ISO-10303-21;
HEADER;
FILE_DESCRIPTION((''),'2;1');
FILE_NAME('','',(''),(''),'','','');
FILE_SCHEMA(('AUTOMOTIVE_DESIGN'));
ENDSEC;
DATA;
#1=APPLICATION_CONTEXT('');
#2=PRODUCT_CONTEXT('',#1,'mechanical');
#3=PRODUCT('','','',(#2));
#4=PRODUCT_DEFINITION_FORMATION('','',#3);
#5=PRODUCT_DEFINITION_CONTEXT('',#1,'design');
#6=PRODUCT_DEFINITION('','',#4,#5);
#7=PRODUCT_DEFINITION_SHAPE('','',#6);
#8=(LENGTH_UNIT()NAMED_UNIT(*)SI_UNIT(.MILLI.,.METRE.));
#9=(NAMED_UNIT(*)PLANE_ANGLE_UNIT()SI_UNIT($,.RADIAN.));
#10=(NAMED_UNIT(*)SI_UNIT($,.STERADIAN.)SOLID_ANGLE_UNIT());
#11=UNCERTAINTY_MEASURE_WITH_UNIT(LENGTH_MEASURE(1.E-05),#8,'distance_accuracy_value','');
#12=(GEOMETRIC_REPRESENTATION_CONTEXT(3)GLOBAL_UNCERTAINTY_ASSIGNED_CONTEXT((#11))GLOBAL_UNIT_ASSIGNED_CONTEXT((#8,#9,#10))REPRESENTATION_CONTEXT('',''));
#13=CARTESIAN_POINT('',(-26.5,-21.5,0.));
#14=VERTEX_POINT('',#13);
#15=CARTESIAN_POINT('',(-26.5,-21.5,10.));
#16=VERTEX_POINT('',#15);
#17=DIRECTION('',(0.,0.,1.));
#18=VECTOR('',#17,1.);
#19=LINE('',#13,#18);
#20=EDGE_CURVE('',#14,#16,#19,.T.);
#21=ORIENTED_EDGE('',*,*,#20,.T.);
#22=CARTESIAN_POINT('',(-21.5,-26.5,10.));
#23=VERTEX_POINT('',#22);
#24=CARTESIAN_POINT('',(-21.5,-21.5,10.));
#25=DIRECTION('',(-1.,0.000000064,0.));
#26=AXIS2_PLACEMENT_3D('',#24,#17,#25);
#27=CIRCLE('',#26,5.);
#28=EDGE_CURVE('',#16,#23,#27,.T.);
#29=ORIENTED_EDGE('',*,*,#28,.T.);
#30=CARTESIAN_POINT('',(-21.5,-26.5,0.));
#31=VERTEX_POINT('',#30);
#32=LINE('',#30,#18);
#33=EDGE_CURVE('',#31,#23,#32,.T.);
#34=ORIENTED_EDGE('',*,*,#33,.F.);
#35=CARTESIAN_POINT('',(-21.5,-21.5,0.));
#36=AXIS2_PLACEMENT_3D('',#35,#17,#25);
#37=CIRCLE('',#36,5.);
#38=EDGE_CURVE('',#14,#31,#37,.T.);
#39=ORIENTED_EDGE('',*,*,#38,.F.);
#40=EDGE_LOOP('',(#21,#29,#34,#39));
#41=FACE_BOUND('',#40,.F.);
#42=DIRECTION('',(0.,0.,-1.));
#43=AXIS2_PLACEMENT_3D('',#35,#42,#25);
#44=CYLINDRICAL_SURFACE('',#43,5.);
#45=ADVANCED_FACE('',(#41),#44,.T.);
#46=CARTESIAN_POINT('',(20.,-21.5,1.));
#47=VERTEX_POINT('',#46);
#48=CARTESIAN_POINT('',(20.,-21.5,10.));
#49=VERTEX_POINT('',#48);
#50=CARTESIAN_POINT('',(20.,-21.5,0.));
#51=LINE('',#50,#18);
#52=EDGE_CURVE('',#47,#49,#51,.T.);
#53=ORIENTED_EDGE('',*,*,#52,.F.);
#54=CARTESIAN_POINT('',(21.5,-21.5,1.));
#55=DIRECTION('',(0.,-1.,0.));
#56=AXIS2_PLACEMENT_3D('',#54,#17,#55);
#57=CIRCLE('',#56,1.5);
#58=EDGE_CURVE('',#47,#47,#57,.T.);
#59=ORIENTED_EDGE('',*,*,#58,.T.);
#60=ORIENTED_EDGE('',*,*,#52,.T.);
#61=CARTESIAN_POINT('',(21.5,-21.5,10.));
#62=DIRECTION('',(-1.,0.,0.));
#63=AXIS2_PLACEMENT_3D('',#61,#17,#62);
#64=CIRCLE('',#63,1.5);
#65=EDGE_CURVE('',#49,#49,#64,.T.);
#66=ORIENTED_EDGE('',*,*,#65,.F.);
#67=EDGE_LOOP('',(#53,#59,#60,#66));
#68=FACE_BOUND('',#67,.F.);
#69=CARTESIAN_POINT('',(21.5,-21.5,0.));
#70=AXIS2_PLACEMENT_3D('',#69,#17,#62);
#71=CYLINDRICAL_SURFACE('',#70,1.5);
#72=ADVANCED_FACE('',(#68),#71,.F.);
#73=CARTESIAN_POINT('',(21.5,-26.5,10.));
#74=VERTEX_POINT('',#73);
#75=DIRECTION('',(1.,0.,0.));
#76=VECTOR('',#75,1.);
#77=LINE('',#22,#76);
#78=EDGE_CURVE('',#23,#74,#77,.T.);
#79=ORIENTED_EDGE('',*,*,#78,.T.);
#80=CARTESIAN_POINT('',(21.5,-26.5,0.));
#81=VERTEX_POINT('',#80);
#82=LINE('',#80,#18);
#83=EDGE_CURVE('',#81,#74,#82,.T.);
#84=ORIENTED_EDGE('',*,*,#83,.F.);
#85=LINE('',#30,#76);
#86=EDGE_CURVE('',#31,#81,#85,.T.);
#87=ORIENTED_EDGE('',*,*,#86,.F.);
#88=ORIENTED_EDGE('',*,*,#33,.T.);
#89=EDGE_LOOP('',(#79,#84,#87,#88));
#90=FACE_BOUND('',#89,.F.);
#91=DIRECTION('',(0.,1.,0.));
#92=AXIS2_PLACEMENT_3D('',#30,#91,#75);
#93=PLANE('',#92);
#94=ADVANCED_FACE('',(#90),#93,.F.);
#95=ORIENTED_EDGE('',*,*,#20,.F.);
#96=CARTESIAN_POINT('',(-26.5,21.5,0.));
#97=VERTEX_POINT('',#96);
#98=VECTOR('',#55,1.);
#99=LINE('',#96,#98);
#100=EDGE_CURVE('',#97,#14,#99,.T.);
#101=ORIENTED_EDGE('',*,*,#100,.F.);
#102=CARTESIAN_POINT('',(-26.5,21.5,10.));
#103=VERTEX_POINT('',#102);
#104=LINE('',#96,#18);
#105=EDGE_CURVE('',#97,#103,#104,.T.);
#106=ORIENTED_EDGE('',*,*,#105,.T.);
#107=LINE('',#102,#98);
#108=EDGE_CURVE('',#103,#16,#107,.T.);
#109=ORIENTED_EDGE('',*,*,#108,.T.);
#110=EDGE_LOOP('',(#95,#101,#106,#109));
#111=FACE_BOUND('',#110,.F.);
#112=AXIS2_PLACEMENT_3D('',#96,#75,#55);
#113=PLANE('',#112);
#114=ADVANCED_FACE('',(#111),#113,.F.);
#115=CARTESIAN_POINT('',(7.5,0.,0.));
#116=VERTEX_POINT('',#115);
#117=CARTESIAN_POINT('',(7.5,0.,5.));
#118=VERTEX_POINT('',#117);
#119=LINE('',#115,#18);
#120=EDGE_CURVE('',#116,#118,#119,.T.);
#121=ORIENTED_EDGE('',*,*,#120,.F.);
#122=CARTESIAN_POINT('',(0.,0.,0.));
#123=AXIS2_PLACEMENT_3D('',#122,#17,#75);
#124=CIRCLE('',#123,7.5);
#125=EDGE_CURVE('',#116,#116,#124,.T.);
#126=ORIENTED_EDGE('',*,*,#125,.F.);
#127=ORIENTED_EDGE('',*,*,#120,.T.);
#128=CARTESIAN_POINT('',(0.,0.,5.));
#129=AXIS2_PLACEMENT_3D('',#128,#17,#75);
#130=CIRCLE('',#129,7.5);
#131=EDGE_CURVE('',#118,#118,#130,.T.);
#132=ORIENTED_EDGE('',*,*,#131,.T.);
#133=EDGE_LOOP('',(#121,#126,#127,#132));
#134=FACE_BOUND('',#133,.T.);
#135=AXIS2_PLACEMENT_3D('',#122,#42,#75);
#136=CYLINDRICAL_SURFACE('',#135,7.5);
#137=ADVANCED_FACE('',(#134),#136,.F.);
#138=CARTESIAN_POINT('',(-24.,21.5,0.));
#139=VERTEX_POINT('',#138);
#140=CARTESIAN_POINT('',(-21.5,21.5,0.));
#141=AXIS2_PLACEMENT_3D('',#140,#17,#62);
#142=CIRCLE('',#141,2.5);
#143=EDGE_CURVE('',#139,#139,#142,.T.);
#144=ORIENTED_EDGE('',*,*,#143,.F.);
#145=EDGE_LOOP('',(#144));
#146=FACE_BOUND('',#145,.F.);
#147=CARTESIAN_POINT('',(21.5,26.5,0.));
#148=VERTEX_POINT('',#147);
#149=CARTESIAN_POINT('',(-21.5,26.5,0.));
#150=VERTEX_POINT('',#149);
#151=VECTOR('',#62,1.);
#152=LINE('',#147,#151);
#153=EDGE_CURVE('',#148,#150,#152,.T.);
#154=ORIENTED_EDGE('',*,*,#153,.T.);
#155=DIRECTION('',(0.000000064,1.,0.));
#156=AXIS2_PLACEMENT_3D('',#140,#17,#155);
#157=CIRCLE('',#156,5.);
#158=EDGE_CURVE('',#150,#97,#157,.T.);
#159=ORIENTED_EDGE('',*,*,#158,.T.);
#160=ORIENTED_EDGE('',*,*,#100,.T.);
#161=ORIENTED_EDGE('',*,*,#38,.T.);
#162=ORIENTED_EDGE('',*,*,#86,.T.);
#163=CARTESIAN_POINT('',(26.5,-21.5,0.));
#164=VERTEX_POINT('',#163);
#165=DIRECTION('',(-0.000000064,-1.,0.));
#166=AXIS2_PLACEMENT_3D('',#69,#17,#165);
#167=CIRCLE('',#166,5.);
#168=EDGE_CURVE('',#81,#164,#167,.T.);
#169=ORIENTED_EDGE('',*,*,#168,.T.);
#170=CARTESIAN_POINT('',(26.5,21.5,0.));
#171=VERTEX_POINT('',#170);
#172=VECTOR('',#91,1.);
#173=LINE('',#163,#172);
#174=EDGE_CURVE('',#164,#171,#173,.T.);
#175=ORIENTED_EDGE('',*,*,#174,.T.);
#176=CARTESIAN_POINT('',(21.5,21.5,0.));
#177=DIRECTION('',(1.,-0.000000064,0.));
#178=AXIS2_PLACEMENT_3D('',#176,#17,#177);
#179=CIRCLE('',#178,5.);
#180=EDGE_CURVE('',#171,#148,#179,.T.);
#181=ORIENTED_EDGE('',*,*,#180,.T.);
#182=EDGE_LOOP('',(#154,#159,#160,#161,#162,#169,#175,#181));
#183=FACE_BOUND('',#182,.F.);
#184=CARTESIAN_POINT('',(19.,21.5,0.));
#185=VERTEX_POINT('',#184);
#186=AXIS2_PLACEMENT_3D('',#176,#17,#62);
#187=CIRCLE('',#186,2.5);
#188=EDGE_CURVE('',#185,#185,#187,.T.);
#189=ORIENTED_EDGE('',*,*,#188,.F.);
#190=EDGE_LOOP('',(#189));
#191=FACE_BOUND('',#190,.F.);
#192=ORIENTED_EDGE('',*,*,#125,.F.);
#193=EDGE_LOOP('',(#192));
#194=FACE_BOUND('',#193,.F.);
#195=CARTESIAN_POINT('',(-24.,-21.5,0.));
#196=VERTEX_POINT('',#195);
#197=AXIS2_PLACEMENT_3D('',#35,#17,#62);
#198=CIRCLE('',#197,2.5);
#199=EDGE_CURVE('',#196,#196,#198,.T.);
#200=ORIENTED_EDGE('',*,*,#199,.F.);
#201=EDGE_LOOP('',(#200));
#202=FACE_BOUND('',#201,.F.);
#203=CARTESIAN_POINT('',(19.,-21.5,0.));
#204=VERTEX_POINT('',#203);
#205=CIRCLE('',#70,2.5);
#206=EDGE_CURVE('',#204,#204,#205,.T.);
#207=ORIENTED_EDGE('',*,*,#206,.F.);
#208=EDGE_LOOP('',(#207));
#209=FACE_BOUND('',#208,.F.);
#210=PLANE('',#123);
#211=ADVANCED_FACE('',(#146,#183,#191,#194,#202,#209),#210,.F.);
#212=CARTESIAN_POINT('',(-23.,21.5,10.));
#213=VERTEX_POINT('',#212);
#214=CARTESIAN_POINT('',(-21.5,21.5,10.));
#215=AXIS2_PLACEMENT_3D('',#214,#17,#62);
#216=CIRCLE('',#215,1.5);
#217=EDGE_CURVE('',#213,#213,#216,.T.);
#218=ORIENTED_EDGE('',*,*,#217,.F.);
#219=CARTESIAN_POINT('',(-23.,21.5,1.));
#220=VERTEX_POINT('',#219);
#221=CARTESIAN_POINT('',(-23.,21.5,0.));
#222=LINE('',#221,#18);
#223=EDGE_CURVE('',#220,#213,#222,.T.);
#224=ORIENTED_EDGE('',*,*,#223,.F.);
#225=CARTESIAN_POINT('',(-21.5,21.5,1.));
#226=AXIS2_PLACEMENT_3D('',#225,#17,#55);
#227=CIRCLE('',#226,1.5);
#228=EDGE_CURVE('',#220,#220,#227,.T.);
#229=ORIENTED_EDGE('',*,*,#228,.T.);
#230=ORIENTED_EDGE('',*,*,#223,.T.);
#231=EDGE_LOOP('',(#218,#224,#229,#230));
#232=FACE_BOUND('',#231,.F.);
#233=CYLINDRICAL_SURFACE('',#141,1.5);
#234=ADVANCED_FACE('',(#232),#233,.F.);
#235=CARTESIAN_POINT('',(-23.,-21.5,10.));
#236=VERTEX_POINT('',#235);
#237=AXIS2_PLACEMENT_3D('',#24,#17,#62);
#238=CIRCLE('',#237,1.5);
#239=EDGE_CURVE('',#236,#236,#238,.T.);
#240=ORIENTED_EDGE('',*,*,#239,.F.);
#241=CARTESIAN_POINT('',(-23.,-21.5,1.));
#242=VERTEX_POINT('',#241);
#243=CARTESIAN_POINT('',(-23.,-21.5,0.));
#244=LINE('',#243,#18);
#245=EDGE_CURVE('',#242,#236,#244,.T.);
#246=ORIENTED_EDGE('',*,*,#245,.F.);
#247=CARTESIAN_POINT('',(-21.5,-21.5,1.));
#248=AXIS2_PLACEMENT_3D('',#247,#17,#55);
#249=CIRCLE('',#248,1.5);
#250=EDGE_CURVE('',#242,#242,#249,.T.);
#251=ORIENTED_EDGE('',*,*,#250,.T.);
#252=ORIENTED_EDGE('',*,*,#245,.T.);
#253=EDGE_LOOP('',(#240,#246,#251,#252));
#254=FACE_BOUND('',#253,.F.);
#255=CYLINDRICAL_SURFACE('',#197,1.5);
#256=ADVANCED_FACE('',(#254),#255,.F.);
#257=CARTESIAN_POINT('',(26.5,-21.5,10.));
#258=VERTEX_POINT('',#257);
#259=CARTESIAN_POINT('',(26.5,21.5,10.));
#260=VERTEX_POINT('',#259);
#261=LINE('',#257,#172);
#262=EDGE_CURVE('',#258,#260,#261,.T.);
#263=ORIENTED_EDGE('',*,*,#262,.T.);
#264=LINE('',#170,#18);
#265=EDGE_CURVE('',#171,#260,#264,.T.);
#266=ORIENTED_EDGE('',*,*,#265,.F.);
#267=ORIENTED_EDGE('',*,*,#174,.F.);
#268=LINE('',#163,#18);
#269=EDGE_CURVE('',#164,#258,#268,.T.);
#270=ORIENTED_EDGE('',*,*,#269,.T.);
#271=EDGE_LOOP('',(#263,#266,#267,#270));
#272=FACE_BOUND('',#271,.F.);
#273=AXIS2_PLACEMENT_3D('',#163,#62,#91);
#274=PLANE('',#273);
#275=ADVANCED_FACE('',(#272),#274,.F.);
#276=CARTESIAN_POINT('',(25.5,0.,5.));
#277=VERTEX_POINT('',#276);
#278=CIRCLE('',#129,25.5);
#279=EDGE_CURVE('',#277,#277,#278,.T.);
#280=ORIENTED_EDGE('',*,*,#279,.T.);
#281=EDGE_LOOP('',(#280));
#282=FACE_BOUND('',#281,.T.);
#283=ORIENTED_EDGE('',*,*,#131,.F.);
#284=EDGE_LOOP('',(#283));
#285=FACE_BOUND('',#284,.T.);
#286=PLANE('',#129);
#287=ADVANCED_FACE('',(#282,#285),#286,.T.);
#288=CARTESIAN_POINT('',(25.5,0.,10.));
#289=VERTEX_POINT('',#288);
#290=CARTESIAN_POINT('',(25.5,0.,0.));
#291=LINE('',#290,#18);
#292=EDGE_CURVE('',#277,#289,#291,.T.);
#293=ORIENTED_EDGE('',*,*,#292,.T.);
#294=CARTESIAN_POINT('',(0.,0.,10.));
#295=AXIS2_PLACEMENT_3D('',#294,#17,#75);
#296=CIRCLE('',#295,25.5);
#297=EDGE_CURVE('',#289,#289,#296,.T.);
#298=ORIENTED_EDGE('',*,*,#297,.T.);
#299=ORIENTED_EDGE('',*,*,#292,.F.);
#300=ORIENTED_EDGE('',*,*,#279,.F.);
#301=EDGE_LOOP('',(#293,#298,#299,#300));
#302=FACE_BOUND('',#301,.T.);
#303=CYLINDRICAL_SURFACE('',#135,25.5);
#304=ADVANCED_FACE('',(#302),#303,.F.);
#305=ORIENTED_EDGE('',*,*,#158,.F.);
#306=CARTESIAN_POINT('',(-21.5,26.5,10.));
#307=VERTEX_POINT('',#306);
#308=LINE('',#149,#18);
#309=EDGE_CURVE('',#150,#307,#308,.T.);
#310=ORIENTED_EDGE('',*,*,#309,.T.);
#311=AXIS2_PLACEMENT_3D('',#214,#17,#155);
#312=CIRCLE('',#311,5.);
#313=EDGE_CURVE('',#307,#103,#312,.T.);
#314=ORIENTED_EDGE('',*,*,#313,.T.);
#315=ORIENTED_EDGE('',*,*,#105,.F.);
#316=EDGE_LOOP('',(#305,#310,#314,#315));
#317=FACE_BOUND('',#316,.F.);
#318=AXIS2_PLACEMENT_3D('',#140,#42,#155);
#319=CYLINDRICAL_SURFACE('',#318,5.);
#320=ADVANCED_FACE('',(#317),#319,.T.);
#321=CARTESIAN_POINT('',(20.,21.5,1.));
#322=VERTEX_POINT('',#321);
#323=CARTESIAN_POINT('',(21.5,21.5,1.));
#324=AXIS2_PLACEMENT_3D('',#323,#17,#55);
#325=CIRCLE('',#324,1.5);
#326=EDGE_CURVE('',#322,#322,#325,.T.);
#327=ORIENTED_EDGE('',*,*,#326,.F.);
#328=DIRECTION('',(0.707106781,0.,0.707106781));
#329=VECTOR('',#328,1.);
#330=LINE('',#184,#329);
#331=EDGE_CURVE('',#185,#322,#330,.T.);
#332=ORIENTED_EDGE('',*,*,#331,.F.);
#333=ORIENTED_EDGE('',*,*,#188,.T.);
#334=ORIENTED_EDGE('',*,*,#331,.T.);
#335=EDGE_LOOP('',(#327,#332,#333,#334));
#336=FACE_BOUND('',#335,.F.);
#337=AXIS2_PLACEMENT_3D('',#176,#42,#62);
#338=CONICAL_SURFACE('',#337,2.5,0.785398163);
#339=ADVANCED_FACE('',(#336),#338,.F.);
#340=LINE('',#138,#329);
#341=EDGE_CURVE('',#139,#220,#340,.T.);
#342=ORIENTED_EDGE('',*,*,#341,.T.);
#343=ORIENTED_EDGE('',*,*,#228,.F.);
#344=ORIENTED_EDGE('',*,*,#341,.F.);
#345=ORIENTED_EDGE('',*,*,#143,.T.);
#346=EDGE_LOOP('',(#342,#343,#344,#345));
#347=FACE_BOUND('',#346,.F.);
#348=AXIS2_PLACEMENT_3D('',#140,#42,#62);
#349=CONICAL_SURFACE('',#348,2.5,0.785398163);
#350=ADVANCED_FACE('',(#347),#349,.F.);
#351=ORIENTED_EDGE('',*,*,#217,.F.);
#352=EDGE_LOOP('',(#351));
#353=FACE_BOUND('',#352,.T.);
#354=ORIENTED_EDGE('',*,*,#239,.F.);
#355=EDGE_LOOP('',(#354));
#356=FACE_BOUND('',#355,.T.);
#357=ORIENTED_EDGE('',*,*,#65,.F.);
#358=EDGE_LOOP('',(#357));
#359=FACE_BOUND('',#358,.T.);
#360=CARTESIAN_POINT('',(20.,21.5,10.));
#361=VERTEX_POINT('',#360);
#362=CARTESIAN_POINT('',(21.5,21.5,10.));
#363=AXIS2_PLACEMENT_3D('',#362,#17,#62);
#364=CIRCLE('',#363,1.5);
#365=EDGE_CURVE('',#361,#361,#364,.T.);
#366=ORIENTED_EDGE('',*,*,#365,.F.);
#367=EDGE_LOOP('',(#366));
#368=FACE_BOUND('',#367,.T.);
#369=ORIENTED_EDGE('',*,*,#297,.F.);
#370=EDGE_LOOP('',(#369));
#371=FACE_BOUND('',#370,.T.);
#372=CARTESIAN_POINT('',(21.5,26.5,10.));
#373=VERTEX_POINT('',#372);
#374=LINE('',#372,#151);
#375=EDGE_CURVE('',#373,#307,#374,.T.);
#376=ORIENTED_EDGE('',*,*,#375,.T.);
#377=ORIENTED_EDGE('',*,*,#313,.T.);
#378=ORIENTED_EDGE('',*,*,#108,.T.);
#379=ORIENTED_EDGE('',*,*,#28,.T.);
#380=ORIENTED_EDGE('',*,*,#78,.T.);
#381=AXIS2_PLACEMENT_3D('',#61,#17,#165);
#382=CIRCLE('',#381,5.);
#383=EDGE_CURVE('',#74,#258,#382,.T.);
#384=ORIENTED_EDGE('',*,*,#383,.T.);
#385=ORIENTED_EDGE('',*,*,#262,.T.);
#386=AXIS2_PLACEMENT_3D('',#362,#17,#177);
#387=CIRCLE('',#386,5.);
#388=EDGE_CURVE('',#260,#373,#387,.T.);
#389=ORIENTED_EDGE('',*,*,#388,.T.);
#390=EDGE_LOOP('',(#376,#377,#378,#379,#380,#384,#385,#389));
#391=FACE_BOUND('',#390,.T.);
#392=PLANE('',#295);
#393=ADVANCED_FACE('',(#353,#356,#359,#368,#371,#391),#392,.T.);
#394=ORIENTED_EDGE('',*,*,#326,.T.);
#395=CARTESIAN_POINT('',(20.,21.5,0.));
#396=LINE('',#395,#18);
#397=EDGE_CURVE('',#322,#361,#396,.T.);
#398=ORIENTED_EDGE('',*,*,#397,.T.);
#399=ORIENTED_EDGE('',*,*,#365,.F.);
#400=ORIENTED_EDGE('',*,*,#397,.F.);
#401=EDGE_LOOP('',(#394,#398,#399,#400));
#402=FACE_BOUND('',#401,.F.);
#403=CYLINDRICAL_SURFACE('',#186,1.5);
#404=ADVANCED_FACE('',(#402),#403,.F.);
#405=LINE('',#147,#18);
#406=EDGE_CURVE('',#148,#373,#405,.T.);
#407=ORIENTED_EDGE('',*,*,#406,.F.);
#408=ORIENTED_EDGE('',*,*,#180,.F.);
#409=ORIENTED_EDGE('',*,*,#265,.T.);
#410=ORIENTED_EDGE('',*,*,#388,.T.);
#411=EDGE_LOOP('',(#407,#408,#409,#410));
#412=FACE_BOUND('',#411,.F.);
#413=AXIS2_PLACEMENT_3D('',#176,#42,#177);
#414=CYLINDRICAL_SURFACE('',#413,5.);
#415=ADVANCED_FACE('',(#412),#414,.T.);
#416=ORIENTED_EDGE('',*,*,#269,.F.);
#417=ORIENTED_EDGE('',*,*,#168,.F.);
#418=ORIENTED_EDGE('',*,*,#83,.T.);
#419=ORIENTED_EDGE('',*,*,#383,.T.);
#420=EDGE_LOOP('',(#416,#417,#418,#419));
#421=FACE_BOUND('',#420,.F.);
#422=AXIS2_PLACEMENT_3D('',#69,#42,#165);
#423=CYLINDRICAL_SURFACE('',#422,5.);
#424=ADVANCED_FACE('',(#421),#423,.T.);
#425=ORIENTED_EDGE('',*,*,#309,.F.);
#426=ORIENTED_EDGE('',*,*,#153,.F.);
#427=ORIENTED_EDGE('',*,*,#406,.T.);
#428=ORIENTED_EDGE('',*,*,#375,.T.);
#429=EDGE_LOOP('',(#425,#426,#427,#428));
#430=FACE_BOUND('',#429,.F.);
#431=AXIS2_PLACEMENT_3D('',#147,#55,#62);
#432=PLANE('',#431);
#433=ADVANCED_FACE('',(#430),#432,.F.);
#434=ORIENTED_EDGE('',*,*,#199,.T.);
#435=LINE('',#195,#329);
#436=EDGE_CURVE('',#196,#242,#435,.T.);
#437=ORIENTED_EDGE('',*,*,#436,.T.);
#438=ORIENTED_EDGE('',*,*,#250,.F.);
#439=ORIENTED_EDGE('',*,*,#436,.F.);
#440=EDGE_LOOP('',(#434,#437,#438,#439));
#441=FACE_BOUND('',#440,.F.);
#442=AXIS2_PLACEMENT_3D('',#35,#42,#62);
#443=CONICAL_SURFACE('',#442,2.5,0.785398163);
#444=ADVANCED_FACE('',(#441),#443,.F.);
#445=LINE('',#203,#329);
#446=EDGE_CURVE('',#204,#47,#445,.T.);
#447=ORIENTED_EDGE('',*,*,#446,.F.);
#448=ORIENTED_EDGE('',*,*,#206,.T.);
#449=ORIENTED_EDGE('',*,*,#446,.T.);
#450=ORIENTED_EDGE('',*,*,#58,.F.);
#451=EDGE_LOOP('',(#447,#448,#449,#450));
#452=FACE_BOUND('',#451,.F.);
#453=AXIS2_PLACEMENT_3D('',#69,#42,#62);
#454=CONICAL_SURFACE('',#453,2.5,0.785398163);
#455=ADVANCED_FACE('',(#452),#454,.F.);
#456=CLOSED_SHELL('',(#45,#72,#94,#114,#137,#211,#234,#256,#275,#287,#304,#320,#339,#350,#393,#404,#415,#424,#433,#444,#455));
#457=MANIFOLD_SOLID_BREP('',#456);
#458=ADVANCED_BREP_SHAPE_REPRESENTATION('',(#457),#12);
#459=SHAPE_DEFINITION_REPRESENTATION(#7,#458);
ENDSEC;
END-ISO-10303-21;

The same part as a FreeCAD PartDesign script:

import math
import FreeCAD as App
import Part
import Sketcher
Q = App.Units.Quantity

doc = App.newDocument("Part")
body = doc.addObject("PartDesign::Body", "Body")

# Sketch on XY plane
sketch1 = body.newObject("Sketcher::SketchObject", "Sketch")
sketch1.AttachmentSupport = (doc.getObject("XY_Plane"), [""])
sketch1.MapMode = "FlatFace"
sketch1.addGeometry([
    Part.LineSegment(App.Vector(21.5, 26.5, 0), App.Vector(-21.5, 26.5, 0)),  # 0
    Part.ArcOfCircle(Part.Circle(App.Vector(-21.5, 21.5, 0), App.Vector(0, 0, 1), 5), math.radians(90), math.radians(180)),  # 1
    Part.LineSegment(App.Vector(-26.5, 21.5, 0), App.Vector(-26.5, -21.5, 0)),  # 2
    Part.ArcOfCircle(Part.Circle(App.Vector(-21.5, -21.5, 0), App.Vector(0, 0, 1), 5), math.radians(180), math.radians(270)),  # 3
    Part.LineSegment(App.Vector(-21.5, -26.5, 0), App.Vector(21.5, -26.5, 0)),  # 4
    Part.ArcOfCircle(Part.Circle(App.Vector(21.5, -21.5, 0), App.Vector(0, 0, 1), 5), math.radians(-90), math.radians(0)),  # 5
    Part.LineSegment(App.Vector(26.5, -21.5, 0), App.Vector(26.5, 21.5, 0)),  # 6
    Part.ArcOfCircle(Part.Circle(App.Vector(21.5, 21.5, 0), App.Vector(0, 0, 1), 5), math.radians(0), math.radians(90)),  # 7
    Part.Circle(App.Vector(0, 0, 0), App.Vector(0, 0, 1), 25.5),  # 8
], False)
sketch1.addConstraint([
    Sketcher.Constraint("Tangent", 0, 2, 1, 1),
    Sketcher.Constraint("Tangent", 1, 2, 2, 1),
    Sketcher.Constraint("Tangent", 2, 2, 3, 1),
    Sketcher.Constraint("Tangent", 3, 2, 4, 1),
    Sketcher.Constraint("Tangent", 4, 2, 5, 1),
    Sketcher.Constraint("Tangent", 5, 2, 6, 1),
    Sketcher.Constraint("Tangent", 6, 2, 7, 1),
    Sketcher.Constraint("Tangent", 7, 2, 0, 1),
    Sketcher.Constraint("Horizontal", 0),
    Sketcher.Constraint("Vertical", 2),
    Sketcher.Constraint("Horizontal", 4),
    Sketcher.Constraint("Vertical", 6),
    Sketcher.Constraint("Coincident", 8, 3, -1, 1),
    Sketcher.Constraint("Equal", 1, 3),
    Sketcher.Constraint("Equal", 3, 5),
    Sketcher.Constraint("Equal", 5, 7),
    Sketcher.Constraint("Symmetric", 1, 3, 5, 3, -1, 1),
    Sketcher.Constraint("Equal", 4, 2),
    Sketcher.Constraint("Diameter", 8, Q("51 mm")),
    Sketcher.Constraint("Radius", 1, Q("5 mm")),
    Sketcher.Constraint("DistanceX", 0, 2, 0, 1, Q("43 mm")),
])
pad1 = body.newObject("PartDesign::Pad", "Pad")
pad1.Profile = sketch1
pad1.Length = 10

# Sketch on XY plane
sketch2 = body.newObject("Sketcher::SketchObject", "Sketch001")
sketch2.AttachmentSupport = (doc.getObject("XY_Plane"), [""])
sketch2.MapMode = "FlatFace"
sketch2.addGeometry([
    Part.Circle(App.Vector(0, 0, 0), App.Vector(0, 0, 1), 26),
    Part.Circle(App.Vector(0, 0, 0), App.Vector(0, 0, 1), 8),
], False)
sketch2.addConstraint([
    Sketcher.Constraint("Coincident", 0, 3, -1, 1),
    Sketcher.Constraint("Coincident", 1, 3, -1, 1),
    Sketcher.Constraint("Diameter", 0, Q("51 mm")),
    Sketcher.Constraint("Diameter", 1, Q("15 mm")),
])
pad2 = body.newObject("PartDesign::Pad", "Pad001")
pad2.Profile = sketch2
pad2.Length = 5

# Sketch on XY plane
sketch3 = body.newObject("Sketcher::SketchObject", "Sketch002")
sketch3.AttachmentSupport = (doc.getObject("XY_Plane"), [""])
sketch3.MapMode = "FlatFace"
sketch3.addGeometry([
    Part.Circle(App.Vector(-21.5, -21.5, 0), App.Vector(0, 0, 1), 1.5),
    Part.Circle(App.Vector(-21.5, 21.5, 0), App.Vector(0, 0, 1), 1.5),
    Part.Circle(App.Vector(21.5, 21.5, 0), App.Vector(0, 0, 1), 1.5),
    Part.Circle(App.Vector(21.5, -21.5, 0), App.Vector(0, 0, 1), 1.5),
], False)
sketch3.addConstraint([
    Sketcher.Constraint("Equal", 0, 1),
    Sketcher.Constraint("Equal", 1, 2),
    Sketcher.Constraint("Equal", 2, 3),
    Sketcher.Constraint("Symmetric", 0, 3, 2, 3, -1, 1),
    Sketcher.Constraint("Symmetric", 1, 3, 3, 3, -1, 1),
    Sketcher.Constraint("Symmetric", 1, 3, 2, 3, -2),
    Sketcher.Constraint("Diameter", 0, Q("3 mm")),
    Sketcher.Constraint("DistanceY", 0, 3, 1, 3, Q("43 mm")),
    Sketcher.Constraint("DistanceX", 1, 3, 2, 3, Q("43 mm")),
])
doc.recompute()
hole = body.newObject("PartDesign::Hole", "Hole")
hole.Profile = sketch3
hole.ThreadType = "None"
hole.Diameter = 3
hole.DepthType = "Dimension"
hole.Depth = 11
hole.DrillPoint = "Flat"
hole.HoleCutType = "Countersink"
hole.HoleCutDiameter = 5
hole.HoleCutCountersinkAngle = 90
hole.Reversed = True

doc.recompute()
